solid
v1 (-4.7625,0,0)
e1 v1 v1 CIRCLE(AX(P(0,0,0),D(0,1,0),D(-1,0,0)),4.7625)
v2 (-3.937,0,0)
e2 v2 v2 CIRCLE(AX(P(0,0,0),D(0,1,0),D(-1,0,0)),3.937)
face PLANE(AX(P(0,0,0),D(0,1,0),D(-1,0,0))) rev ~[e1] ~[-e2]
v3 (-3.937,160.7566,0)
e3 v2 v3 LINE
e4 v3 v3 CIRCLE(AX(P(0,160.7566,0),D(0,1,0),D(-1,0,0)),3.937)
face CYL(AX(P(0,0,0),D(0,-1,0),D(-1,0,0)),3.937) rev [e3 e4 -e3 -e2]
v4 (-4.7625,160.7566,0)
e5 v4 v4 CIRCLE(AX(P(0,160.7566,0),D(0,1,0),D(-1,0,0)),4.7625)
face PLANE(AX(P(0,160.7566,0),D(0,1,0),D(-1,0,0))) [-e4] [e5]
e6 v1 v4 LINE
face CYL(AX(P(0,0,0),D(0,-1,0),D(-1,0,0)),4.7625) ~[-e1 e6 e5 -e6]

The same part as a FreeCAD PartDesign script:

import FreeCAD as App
import Part
import Sketcher

V = App.Vector
Q = App.Units.Quantity

doc = App.newDocument("Part")
params = doc.addObject("Spreadsheet::Sheet", "Params")
for row, (alias, value) in enumerate([
    ("sketch1_diameter", "0.31 in"),
    ("sketch1_diameter2", "0.375 in"),
    ("pad1_length", "6.329 in"),
], start=1):
    params.set(f"A{row}", alias)
    params.set(f"B{row}", "=" + value)
    params.setAlias(f"B{row}", alias)

body = doc.addObject("PartDesign::Body", "Body")

# Sketch on XZ plane
sketch1 = body.newObject("Sketcher::SketchObject", "Sketch")
sketch1.AttachmentSupport = (doc.getObject("XZ_Plane"), [""])
sketch1.MapMode = "FlatFace"
sketch1.addGeometry(Part.Circle(V(0, 0, 0), V(0, 0, 1), 4.8), False)
sketch1.addGeometry(Part.Circle(V(0, 0, 0), V(0, 0, 1), 3.9), False)
sketch1.addConstraint(Sketcher.Constraint("Coincident", 0, 3, -1, 1))
sketch1.addConstraint(Sketcher.Constraint("Coincident", 1, 3, -1, 1))
sketch1.addConstraint(Sketcher.Constraint("Diameter", 1, Q("0.31 in")))
sketch1.addConstraint(Sketcher.Constraint("Diameter", 0, Q("0.375 in")))
sketch1.setExpression("Constraints[2]", "Params.sketch1_diameter")
sketch1.setExpression("Constraints[3]", "Params.sketch1_diameter2")
pad1 = body.newObject("PartDesign::Pad", "Pad")
pad1.Profile = sketch1
pad1.setExpression("Length", "Params.pad1_length")
pad1.Reversed = True

doc.recompute()
